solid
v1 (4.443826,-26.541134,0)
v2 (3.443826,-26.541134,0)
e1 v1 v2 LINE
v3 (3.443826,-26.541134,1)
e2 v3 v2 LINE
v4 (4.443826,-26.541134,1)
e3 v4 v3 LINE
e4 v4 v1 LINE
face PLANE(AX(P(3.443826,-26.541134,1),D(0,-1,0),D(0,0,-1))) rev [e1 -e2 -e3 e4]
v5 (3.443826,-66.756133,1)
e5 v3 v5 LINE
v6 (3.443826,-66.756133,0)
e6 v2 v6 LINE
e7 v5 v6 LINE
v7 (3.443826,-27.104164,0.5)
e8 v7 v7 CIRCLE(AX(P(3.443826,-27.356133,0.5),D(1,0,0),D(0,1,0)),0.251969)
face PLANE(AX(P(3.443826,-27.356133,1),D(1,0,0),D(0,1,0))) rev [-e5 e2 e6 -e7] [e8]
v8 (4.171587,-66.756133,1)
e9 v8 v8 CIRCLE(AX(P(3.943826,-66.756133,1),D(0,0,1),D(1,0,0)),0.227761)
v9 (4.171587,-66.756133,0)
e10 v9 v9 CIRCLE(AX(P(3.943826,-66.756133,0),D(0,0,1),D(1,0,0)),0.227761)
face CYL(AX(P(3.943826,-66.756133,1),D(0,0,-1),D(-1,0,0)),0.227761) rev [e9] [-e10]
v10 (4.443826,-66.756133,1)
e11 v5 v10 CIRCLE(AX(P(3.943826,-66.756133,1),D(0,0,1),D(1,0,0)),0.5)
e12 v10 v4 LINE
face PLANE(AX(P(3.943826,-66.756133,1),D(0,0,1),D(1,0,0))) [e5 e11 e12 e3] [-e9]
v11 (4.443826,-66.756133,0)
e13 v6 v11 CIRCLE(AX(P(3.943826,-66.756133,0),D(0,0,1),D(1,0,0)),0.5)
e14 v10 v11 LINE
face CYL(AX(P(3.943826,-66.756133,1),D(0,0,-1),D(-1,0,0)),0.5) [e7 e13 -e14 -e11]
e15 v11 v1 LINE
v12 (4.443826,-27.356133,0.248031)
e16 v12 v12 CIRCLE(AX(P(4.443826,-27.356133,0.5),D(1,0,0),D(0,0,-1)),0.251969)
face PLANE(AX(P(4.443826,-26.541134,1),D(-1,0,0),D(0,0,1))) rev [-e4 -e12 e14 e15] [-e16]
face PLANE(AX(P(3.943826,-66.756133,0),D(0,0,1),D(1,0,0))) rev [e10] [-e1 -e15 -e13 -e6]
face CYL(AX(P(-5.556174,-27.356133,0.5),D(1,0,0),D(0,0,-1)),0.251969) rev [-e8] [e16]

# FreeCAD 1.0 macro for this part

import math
import FreeCAD as App
import Part
import Sketcher

doc = App.newDocument("Part")
params = doc.addObject("Spreadsheet::Sheet", "Params")
for row, (alias, value) in enumerate([
    ("sketch1_radius", "0.5 mm"),
    ("pad1_length", "1 mm"),
    ("pocket1_length", "10 mm"),
], start=1):
    params.set(f"A{row}", alias)
    params.set(f"B{row}", "=" + value)
    params.setAlias(f"B{row}", alias)

body = doc.addObject("PartDesign::Body", "Body")

# Sketch on XY plane
sketch1 = body.newObject("Sketcher::SketchObject", "Sketch")
sketch1.AttachmentSupport = (doc.getObject("XY_Plane"), [""])
sketch1.MapMode = "FlatFace"
sketch1.addGeometry([
    Part.ArcOfCircle(Part.Circle(App.Vector(3.943826, -66.756133, 0), App.Vector(0, 0, 1), 0.5), math.radians(180), math.radians(360)),  # 0
    Part.LineSegment(App.Vector(4.443826, -66.756133, 0), App.Vector(4.443826, -26.541134, 0)),  # 1
    Part.LineSegment(App.Vector(4.443826, -26.541134, 0), App.Vector(3.443826, -26.541134, 0)),  # 2
    Part.LineSegment(App.Vector(3.443826, -26.541134, 0), App.Vector(3.443826, -66.756133, 0)),  # 3
    Part.Circle(App.Vector(3.943826, -66.756133, 0), App.Vector(0, 0, 1), 0.227761),  # 4
], False)
sketch1.addConstraint([
    Sketcher.Constraint("Tangent", 0, 2, 1, 1),
    Sketcher.Constraint("Coincident", 1, 2, 2, 1),
    Sketcher.Constraint("Coincident", 2, 2, 3, 1),
    Sketcher.Constraint("Tangent", 3, 2, 0, 1),
    Sketcher.Constraint("Vertical", 1),
    Sketcher.Constraint("Horizontal", 2),
    Sketcher.Constraint("Vertical", 3),
    Sketcher.Constraint("Coincident", 4, 3, 0, 3),
    Sketcher.Constraint("Radius", 0, 0.5),
    Sketcher.Constraint("DistanceY", 1, 1, 1, 2, 40.214999),
    Sketcher.Constraint("Diameter", 4, 0.455522),
    Sketcher.Constraint("DistanceX", -1, 1, 0, 3, 3.943826),
    Sketcher.Constraint("DistanceY", 0, 3, -1, 1, 66.756133),
])
sketch1.setExpression("Constraints[8]", "Params.sketch1_radius")
pad1 = body.newObject("PartDesign::Pad", "Pad")
pad1.Profile = sketch1
pad1.setExpression("Length", "Params.pad1_length")

# Sketch on YZ plane
sketch2 = body.newObject("Sketcher::SketchObject", "Sketch001")
sketch2.AttachmentSupport = (doc.getObject("YZ_Plane"), [""])
sketch2.MapMode = "FlatFace"
sketch2.AttachmentOffset = App.Placement(App.Vector(0, 0, 4.443826), App.Rotation())
sketch2.addGeometry(Part.Circle(App.Vector(-27.356133, 0.5, 0), App.Vector(0, 0, 1), 0.251969), False)
sketch2.addConstraint([
    Sketcher.Constraint("DistanceY", -1, 1, 0, 3, 0.5),
    Sketcher.Constraint("Diameter", 0, 0.503937),
    Sketcher.Constraint("DistanceX", 0, 3, -1, 1, 27.356133),
])
pocket1 = body.newObject("PartDesign::Pocket", "Pocket")
pocket1.Profile = sketch2
pocket1.setExpression("Length", "Params.pocket1_length")

doc.recompute()
